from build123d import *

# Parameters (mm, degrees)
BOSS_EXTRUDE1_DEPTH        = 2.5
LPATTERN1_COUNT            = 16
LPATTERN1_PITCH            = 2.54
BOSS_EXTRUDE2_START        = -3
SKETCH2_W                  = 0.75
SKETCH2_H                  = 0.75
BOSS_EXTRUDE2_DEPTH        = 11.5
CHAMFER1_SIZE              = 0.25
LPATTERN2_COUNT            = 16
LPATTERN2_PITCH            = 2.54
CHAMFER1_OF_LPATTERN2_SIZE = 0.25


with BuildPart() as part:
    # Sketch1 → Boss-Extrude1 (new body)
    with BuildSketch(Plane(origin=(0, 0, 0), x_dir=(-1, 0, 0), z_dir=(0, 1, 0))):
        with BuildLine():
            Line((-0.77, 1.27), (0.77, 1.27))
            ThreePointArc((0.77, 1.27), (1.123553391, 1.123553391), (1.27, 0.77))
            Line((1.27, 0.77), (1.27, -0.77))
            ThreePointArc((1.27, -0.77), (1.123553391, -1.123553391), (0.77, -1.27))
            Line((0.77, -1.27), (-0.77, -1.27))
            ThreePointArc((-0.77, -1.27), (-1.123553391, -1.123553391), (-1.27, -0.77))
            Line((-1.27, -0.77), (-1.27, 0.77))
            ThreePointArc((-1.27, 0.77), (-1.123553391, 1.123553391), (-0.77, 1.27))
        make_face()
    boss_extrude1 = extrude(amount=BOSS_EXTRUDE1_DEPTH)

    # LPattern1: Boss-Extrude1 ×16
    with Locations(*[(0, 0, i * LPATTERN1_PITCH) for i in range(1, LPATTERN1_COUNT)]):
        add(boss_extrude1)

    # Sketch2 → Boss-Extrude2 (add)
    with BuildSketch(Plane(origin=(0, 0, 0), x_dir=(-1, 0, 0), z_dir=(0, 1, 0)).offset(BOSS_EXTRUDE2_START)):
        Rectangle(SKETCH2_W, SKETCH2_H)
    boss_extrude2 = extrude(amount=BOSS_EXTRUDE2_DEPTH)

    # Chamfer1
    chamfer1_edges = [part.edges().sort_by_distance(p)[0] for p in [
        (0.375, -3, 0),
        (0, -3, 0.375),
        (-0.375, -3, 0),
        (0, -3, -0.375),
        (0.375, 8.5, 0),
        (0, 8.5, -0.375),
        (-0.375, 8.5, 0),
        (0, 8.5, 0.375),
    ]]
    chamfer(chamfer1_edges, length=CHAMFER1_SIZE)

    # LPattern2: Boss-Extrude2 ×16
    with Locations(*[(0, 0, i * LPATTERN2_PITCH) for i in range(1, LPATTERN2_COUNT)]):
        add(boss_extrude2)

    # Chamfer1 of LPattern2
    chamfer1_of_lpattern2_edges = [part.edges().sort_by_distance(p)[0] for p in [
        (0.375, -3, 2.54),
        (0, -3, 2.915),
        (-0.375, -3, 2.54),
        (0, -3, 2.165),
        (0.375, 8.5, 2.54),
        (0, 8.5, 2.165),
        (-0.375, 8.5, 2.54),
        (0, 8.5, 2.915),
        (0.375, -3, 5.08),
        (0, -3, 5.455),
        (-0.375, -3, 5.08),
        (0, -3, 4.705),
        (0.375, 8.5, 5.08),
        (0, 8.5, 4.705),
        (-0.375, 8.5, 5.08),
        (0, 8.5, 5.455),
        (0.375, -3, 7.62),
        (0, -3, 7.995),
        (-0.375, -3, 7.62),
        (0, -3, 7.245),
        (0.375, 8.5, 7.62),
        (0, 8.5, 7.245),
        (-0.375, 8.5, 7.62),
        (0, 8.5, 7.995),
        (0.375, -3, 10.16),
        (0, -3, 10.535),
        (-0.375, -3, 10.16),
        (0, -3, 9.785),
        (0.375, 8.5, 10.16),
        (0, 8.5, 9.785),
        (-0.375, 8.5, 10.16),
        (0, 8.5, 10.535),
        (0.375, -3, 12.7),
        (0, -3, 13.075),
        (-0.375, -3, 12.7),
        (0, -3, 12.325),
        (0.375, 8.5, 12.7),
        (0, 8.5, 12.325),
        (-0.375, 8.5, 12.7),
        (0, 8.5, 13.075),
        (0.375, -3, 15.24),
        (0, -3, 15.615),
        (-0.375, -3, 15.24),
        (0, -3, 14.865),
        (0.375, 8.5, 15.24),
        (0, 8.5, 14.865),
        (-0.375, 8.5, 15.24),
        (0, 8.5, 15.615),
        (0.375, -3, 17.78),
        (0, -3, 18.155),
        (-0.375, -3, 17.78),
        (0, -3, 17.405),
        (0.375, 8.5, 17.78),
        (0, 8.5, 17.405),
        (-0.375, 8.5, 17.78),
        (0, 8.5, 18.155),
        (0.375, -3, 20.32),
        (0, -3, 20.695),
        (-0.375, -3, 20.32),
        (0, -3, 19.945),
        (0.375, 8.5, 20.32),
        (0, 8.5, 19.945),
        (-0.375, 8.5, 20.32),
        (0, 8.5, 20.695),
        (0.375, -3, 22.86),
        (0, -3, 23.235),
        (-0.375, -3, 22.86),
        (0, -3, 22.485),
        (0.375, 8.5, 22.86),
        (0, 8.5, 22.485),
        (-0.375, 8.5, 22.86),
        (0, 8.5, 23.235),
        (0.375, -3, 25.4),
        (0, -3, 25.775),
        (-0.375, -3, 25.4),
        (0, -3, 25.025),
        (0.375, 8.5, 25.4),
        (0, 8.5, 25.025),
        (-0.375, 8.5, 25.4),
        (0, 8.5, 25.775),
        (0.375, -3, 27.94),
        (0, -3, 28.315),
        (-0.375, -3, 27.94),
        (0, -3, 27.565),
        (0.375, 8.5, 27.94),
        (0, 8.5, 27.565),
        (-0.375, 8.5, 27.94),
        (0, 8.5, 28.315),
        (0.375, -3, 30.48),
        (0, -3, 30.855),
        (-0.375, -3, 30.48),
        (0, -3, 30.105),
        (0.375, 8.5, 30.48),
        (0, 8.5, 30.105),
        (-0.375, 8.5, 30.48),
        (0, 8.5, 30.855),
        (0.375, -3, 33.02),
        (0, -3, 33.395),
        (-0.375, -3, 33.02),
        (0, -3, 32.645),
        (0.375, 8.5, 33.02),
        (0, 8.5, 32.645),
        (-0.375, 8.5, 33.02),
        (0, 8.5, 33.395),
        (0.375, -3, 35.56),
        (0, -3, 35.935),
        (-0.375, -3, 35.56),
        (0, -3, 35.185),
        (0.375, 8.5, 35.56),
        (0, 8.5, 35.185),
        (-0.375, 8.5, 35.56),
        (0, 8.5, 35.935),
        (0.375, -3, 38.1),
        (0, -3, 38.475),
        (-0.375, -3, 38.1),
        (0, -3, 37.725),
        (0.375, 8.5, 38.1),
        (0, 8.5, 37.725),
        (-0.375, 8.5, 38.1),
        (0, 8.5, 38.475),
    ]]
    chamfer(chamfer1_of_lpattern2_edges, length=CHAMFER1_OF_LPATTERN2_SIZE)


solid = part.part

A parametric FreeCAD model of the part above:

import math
import FreeCAD as App
import Part
import Sketcher

V = App.Vector


def edges_at(feature, points):
    """Names of the edges that pass closest to the given points."""
    edges = feature.Shape.Edges
    near = lambda p: min(range(len(edges)), key=lambda i: edges[i].distToShape(Part.Vertex(*p))[0])
    return sorted({f"Edge{near(p) + 1}" for p in points})

doc = App.newDocument("Part")
body = doc.addObject("PartDesign::Body", "Body")

# Sketch on XZ plane
sketch1 = body.newObject("Sketcher::SketchObject", "Sketch")
sketch1.AttachmentSupport = (doc.getObject("XZ_Plane"), [""])
sketch1.MapMode = "FlatFace"
sketch1.addGeometry(Part.LineSegment(V(-0.77, 1.27, 0), V(0.77, 1.27, 0)), False)
sketch1.addGeometry(Part.ArcOfCircle(Part.Circle(V(0.77, 0.77, 0), V(0, 0, 1), 0.5), math.radians(0), math.radians(90)), False)
sketch1.addGeometry(Part.LineSegment(V(1.27, 0.77, 0), V(1.27, -0.77, 0)), False)
sketch1.addGeometry(Part.ArcOfCircle(Part.Circle(V(0.77, -0.77, 0), V(0, 0, 1), 0.5), math.radians(-90), math.radians(0)), False)
sketch1.addGeometry(Part.LineSegment(V(0.77, -1.27, 0), V(-0.77, -1.27, 0)), False)
sketch1.addGeometry(Part.ArcOfCircle(Part.Circle(V(-0.77, -0.77, 0), V(0, 0, 1), 0.5), math.radians(180), math.radians(270)), False)
sketch1.addGeometry(Part.LineSegment(V(-1.27, -0.77, 0), V(-1.27, 0.77, 0)), False)
sketch1.addGeometry(Part.ArcOfCircle(Part.Circle(V(-0.77, 0.77, 0), V(0, 0, 1), 0.5), math.radians(90), math.radians(180)), False)
sketch1.addConstraint(Sketcher.Constraint("Tangent", 0, 2, 1, 2))
sketch1.addConstraint(Sketcher.Constraint("Tangent", 1, 1, 2, 1))
sketch1.addConstraint(Sketcher.Constraint("Tangent", 2, 2, 3, 2))
sketch1.addConstraint(Sketcher.Constraint("Tangent", 3, 1, 4, 1))
sketch1.addConstraint(Sketcher.Constraint("Tangent", 4, 2, 5, 2))
sketch1.addConstraint(Sketcher.Constraint("Tangent", 5, 1, 6, 1))
sketch1.addConstraint(Sketcher.Constraint("Tangent", 6, 2, 7, 2))
sketch1.addConstraint(Sketcher.Constraint("Tangent", 7, 1, 0, 1))
sketch1.addConstraint(Sketcher.Constraint("Horizontal", 0))
sketch1.addConstraint(Sketcher.Constraint("Vertical", 2))
sketch1.addConstraint(Sketcher.Constraint("Horizontal", 4))
sketch1.addConstraint(Sketcher.Constraint("Vertical", 6))
sketch1.addConstraint(Sketcher.Constraint("Equal", 1, 3))
sketch1.addConstraint(Sketcher.Constraint("Equal", 3, 5))
sketch1.addConstraint(Sketcher.Constraint("Equal", 5, 7))
sketch1.addConstraint(Sketcher.Constraint("Symmetric", 1, 3, 5, 3, -1, 1))
sketch1.addConstraint(Sketcher.Constraint("Equal", 4, 2))
sketch1.addConstraint(Sketcher.Constraint("Radius", 1, 0.5))
sketch1.addConstraint(Sketcher.Constraint("DistanceX", 0, 1, 0, 2, 1.54))
pad1 = body.newObject("PartDesign::Pad", "Pad")
pad1.Profile = sketch1
pad1.Length = 2.5
pad1.Reversed = True
doc.recompute()

linearpattern = body.newObject("PartDesign::LinearPattern", "LinearPattern")
linearpattern.Originals = [pad1]
linearpattern.Direction = (doc.getObject("Z_Axis"), [""])
linearpattern.Mode = "offset"
linearpattern.Offset = 2.54
linearpattern.Occurrences = 16
body.Tip = linearpattern

# Sketch on XZ plane
sketch2 = body.newObject("Sketcher::SketchObject", "Sketch001")
sketch2.AttachmentSupport = (doc.getObject("XZ_Plane"), [""])
sketch2.MapMode = "FlatFace"
sketch2.AttachmentOffset = App.Placement(V(0, 0, 3), App.Rotation())
sketch2.addGeometry(Part.LineSegment(V(0.4, 0.4, 0), V(0.4, -0.4, 0)), False)
sketch2.addGeometry(Part.LineSegment(V(0.4, -0.4, 0), V(-0.4, -0.4, 0)), False)
sketch2.addGeometry(Part.LineSegment(V(-0.4, -0.4, 0), V(-0.4, 0.4, 0)), False)
sketch2.addGeometry(Part.LineSegment(V(-0.4, 0.4, 0), V(0.4, 0.4, 0)), False)
sketch2.addConstraint(Sketcher.Constraint("Coincident", 0, 2, 1, 1))
sketch2.addConstraint(Sketcher.Constraint("Coincident", 1, 2, 2, 1))
sketch2.addConstraint(Sketcher.Constraint("Coincident", 2, 2, 3, 1))
sketch2.addConstraint(Sketcher.Constraint("Coincident", 3, 2, 0, 1))
sketch2.addConstraint(Sketcher.Constraint("Vertical", 0))
sketch2.addConstraint(Sketcher.Constraint("Horizontal", 1))
sketch2.addConstraint(Sketcher.Constraint("Vertical", 2))
sketch2.addConstraint(Sketcher.Constraint("Horizontal", 3))
sketch2.addConstraint(Sketcher.Constraint("Symmetric", 0, 2, 2, 2, -1, 1))
sketch2.addConstraint(Sketcher.Constraint("Equal", 3, 0))
sketch2.addConstraint(Sketcher.Constraint("DistanceX", 1, 2, 1, 1, 0.75))
pad2 = body.newObject("PartDesign::Pad", "Pad001")
pad2.Profile = sketch2
pad2.Length = 11.5
pad2.Reversed = True
doc.recompute()

chamfer = body.newObject("PartDesign::Chamfer", "Chamfer")
chamfer.Base = (pad2, edges_at(pad2, [
    (0.375, -3, 0),
    (0, -3, 0.375),
    (-0.375, -3, 0),
    (0, -3, -0.375),
    (0.375, 8.5, 0),
    (0, 8.5, -0.375),
    (-0.375, 8.5, 0),
    (0, 8.5, 0.375),
]))
chamfer.Size = 0.25
doc.recompute()

linearpattern2 = body.newObject("PartDesign::LinearPattern", "LinearPattern001")
linearpattern2.Originals = [pad2]
linearpattern2.Direction = (doc.getObject("Z_Axis"), [""])
linearpattern2.Mode = "offset"
linearpattern2.Offset = 2.54
linearpattern2.Occurrences = 16
body.Tip = linearpattern2
doc.recompute()

chamfer2 = body.newObject("PartDesign::Chamfer", "Chamfer001")
chamfer2.Base = (linearpattern2, edges_at(linearpattern2, [
    (0.375, -3, 2.54),
    (0, -3, 2.915),
    (-0.375, -3, 2.54),
    (0, -3, 2.165),
    (0.375, 8.5, 2.54),
    (0, 8.5, 2.165),
    (-0.375, 8.5, 2.54),
    (0, 8.5, 2.915),
    (0.375, -3, 5.08),
    (0, -3, 5.455),
    (-0.375, -3, 5.08),
    (0, -3, 4.705),
    (0.375, 8.5, 5.08),
    (0, 8.5, 4.705),
    (-0.375, 8.5, 5.08),
    (0, 8.5, 5.455),
    (0.375, -3, 7.62),
    (0, -3, 7.995),
    (-0.375, -3, 7.62),
    (0, -3, 7.245),
    (0.375, 8.5, 7.62),
    (0, 8.5, 7.245),
    (-0.375, 8.5, 7.62),
    (0, 8.5, 7.995),
    (0.375, -3, 10.16),
    (0, -3, 10.535),
    (-0.375, -3, 10.16),
    (0, -3, 9.785),
    (0.375, 8.5, 10.16),
    (0, 8.5, 9.785),
    (-0.375, 8.5, 10.16),
    (0, 8.5, 10.535),
    (0.375, -3, 12.7),
    (0, -3, 13.075),
    (-0.375, -3, 12.7),
    (0, -3, 12.325),
    (0.375, 8.5, 12.7),
    (0, 8.5, 12.325),
    (-0.375, 8.5, 12.7),
    (0, 8.5, 13.075),
    (0.375, -3, 15.24),
    (0, -3, 15.615),
    (-0.375, -3, 15.24),
    (0, -3, 14.865),
    (0.375, 8.5, 15.24),
    (0, 8.5, 14.865),
    (-0.375, 8.5, 15.24),
    (0, 8.5, 15.615),
    (0.375, -3, 17.78),
    (0, -3, 18.155),
    (-0.375, -3, 17.78),
    (0, -3, 17.405),
    (0.375, 8.5, 17.78),
    (0, 8.5, 17.405),
    (-0.375, 8.5, 17.78),
    (0, 8.5, 18.155),
    (0.375, -3, 20.32),
    (0, -3, 20.695),
    (-0.375, -3, 20.32),
    (0, -3, 19.945),
    (0.375, 8.5, 20.32),
    (0, 8.5, 19.945),
    (-0.375, 8.5, 20.32),
    (0, 8.5, 20.695),
    (0.375, -3, 22.86),
    (0, -3, 23.235),
    (-0.375, -3, 22.86),
    (0, -3, 22.485),
    (0.375, 8.5, 22.86),
    (0, 8.5, 22.485),
    (-0.375, 8.5, 22.86),
    (0, 8.5, 23.235),
    (0.375, -3, 25.4),
    (0, -3, 25.775),
    (-0.375, -3, 25.4),
    (0, -3, 25.025),
    (0.375, 8.5, 25.4),
    (0, 8.5, 25.025),
    (-0.375, 8.5, 25.4),
    (0, 8.5, 25.775),
    (0.375, -3, 27.94),
    (0, -3, 28.315),
    (-0.375, -3, 27.94),
    (0, -3, 27.565),
    (0.375, 8.5, 27.94),
    (0, 8.5, 27.565),
    (-0.375, 8.5, 27.94),
    (0, 8.5, 28.315),
    (0.375, -3, 30.48),
    (0, -3, 30.855),
    (-0.375, -3, 30.48),
    (0, -3, 30.105),
    (0.375, 8.5, 30.48),
    (0, 8.5, 30.105),
    (-0.375, 8.5, 30.48),
    (0, 8.5, 30.855),
    (0.375, -3, 33.02),
    (0, -3, 33.395),
    (-0.375, -3, 33.02),
    (0, -3, 32.645),
    (0.375, 8.5, 33.02),
    (0, 8.5, 32.645),
    (-0.375, 8.5, 33.02),
    (0, 8.5, 33.395),
    (0.375, -3, 35.56),
    (0, -3, 35.935),
    (-0.375, -3, 35.56),
    (0, -3, 35.185),
    (0.375, 8.5, 35.56),
    (0, 8.5, 35.185),
    (-0.375, 8.5, 35.56),
    (0, 8.5, 35.935),
    (0.375, -3, 38.1),
    (0, -3, 38.475),
    (-0.375, -3, 38.1),
    (0, -3, 37.725),
    (0.375, 8.5, 38.1),
    (0, 8.5, 37.725),
    (-0.375, 8.5, 38.1),
    (0, 8.5, 38.475),
]))
chamfer2.Size = 0.25

doc.recompute()
